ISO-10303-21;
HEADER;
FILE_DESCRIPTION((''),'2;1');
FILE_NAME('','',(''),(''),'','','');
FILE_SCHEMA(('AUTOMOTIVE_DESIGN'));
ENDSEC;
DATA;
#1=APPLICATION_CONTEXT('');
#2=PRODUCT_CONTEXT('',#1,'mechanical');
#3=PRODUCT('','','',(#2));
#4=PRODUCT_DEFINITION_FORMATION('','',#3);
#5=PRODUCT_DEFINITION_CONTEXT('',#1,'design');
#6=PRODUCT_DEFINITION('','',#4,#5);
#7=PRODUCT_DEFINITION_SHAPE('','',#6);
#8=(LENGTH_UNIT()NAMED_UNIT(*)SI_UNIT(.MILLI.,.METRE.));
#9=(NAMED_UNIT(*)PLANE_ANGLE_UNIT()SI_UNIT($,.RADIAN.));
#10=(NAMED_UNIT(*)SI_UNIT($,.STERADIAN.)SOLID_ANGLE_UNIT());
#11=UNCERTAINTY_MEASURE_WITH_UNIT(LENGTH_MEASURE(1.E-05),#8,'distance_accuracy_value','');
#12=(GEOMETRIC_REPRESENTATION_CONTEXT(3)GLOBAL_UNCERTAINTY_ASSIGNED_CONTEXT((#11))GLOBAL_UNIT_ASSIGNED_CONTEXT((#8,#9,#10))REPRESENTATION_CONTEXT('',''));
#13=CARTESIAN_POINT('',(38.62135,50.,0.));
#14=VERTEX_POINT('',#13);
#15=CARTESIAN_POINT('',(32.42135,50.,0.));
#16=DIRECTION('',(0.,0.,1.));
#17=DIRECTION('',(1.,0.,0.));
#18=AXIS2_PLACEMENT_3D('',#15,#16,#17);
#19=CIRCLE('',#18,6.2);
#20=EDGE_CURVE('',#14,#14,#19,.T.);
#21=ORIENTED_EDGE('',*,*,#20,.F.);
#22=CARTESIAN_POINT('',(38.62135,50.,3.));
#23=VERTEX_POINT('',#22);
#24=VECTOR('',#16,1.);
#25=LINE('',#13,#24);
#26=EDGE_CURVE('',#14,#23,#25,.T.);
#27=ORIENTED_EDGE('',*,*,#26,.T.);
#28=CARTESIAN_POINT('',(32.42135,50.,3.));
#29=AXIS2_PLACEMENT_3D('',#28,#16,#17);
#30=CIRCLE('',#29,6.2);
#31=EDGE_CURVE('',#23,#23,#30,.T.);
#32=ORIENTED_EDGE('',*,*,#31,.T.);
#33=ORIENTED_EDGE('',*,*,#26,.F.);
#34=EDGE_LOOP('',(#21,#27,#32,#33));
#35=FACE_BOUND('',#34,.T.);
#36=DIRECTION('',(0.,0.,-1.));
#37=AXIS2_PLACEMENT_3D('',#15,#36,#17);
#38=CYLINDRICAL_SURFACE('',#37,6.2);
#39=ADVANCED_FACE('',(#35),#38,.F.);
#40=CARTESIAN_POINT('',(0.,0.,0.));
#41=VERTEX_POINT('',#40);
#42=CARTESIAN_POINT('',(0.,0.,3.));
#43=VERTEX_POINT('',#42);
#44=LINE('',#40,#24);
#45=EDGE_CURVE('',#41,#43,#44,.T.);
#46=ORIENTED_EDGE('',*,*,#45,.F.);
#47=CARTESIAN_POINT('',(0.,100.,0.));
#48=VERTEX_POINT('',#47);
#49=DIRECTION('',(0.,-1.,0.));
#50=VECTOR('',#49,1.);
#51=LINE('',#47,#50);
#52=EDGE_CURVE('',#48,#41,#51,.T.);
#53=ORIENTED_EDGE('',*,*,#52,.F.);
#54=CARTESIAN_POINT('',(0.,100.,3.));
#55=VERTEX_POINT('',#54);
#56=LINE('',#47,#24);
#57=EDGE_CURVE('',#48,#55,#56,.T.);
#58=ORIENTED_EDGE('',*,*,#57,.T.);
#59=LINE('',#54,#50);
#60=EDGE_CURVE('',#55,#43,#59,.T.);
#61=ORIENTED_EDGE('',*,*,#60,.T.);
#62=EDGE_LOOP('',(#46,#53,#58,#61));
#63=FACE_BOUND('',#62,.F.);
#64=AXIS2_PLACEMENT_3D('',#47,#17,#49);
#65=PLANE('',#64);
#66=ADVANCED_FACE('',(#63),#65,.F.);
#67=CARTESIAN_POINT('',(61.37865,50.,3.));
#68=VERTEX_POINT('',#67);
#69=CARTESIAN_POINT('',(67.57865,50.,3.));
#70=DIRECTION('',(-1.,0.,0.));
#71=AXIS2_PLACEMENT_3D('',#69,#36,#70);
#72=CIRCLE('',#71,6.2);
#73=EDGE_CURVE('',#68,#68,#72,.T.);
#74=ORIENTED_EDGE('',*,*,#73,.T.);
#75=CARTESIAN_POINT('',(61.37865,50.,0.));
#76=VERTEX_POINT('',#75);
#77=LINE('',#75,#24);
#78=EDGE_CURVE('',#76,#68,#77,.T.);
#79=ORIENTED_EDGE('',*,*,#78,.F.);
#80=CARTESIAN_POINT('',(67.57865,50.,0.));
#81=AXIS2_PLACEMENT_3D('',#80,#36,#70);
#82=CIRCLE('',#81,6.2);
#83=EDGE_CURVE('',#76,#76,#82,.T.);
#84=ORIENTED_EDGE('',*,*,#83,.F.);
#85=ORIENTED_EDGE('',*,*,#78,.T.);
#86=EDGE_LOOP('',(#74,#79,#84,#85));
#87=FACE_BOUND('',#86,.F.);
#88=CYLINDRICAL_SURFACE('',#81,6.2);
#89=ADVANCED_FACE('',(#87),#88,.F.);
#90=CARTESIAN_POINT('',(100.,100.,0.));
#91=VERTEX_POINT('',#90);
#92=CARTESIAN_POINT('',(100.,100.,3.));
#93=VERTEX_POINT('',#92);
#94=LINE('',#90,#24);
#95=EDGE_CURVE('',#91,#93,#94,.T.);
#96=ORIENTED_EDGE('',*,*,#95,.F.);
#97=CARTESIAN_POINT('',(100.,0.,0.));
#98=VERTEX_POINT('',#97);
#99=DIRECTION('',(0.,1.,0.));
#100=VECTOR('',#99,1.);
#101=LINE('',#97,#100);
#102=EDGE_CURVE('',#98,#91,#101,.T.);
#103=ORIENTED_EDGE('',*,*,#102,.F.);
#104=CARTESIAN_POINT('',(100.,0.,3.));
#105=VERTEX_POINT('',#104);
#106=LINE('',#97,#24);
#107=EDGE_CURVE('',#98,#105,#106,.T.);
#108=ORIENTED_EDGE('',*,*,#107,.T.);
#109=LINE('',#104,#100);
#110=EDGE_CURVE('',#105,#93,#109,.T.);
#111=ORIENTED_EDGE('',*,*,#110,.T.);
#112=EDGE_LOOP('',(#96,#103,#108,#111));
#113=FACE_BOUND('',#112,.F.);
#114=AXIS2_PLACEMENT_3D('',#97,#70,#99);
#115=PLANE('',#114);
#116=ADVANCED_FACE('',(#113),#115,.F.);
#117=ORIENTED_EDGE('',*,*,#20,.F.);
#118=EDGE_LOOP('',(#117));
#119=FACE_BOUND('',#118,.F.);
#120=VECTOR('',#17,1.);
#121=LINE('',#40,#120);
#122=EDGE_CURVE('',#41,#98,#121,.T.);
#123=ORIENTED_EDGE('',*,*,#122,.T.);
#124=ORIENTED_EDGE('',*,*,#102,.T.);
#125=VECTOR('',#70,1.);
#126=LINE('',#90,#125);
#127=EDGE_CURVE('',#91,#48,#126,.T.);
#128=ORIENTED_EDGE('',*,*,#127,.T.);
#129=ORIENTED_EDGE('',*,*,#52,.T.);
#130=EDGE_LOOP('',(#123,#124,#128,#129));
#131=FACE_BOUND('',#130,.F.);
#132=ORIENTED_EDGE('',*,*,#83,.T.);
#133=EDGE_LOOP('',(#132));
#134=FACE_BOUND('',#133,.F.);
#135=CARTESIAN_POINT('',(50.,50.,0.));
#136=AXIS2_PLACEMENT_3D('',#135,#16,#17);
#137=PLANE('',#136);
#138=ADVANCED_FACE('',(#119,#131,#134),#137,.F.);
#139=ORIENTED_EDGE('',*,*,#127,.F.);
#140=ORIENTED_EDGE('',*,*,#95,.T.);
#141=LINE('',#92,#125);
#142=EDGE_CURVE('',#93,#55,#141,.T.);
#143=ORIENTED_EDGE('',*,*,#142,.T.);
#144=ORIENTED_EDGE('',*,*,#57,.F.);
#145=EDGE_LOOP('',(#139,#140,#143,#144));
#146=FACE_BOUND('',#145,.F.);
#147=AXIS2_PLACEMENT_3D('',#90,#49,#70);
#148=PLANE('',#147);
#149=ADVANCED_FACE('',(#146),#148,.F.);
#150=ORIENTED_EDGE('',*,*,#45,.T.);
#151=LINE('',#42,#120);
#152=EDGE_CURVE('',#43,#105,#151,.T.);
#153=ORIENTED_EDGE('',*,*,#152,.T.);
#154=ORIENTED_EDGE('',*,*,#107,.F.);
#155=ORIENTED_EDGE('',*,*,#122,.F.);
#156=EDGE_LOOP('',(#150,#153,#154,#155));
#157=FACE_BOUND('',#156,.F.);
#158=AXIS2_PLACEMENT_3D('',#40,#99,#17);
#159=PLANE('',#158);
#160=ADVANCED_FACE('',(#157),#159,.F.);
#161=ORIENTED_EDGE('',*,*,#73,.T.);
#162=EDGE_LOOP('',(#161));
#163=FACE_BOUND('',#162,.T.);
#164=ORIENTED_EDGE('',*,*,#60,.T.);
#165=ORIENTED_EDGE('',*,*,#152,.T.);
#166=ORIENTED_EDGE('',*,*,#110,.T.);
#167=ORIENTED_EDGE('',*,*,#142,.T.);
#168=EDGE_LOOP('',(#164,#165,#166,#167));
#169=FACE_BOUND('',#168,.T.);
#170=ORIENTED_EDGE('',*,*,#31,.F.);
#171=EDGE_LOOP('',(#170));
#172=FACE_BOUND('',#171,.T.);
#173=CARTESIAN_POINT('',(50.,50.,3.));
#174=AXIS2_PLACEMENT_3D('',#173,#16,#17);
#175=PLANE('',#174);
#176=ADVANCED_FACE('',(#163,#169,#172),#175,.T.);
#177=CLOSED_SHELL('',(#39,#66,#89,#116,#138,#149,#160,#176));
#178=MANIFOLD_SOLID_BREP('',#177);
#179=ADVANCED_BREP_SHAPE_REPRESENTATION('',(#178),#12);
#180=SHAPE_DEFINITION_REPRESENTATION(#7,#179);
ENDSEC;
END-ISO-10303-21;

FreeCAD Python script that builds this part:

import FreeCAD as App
import Part
import Sketcher
from FreeCAD import Vector
Q = App.Units.Quantity


def add_polygon(sketch, points):
    """Adds a closed chain of lines whose ends are joined by coincident constraints."""
    first, n = sketch.GeometryCount, len(points)
    for a, b in zip(points, points[1:] + points[:1]):
        sketch.addGeometry(Part.LineSegment(App.Vector(*a, 0), App.Vector(*b, 0)), False)
    for i in range(n):
        sketch.addConstraint(Sketcher.Constraint("Coincident", first + i, 2, first + (i + 1) % n, 1))

doc = App.newDocument("Part")
body = doc.addObject("PartDesign::Body", "Body")

sketch1 = doc.addObject("Sketcher::SketchObject", "Sketch")
body.addObject(sketch1)
sketch1.AttachmentSupport = (doc.XY_Plane, [""])
sketch1.MapMode = "FlatFace"
add_polygon(sketch1, [(0, 0), (100, 0), (100, 100), (0, 100)])
sketch1.addGeometry(Part.Circle(Vector(32, 50, 0), Vector(0, 0, 1), 6), False)
sketch1.addGeometry(Part.Circle(Vector(68, 50, 0), Vector(0, 0, 1), 6), False)
sketch1.addConstraint([
    Sketcher.Constraint("Horizontal", 0),
    Sketcher.Constraint("Vertical", 1),
    Sketcher.Constraint("Horizontal", 2),
    Sketcher.Constraint("Vertical", 3),
    Sketcher.Constraint("Coincident", 3, 2, -1, 1),
    Sketcher.Constraint("Equal", 4, 5),
    Sketcher.Constraint("Horizontal", 4, 3, 5, 3),
    Sketcher.Constraint("Equal", 2, 1),
    Sketcher.Constraint("Diameter", 4, Q("12.4 mm")),
    Sketcher.Constraint("DistanceX", 0, 1, 0, 2, Q("100 mm")),
    Sketcher.Constraint("DistanceY", -1, 1, 4, 3, Q("50 mm")),
    Sketcher.Constraint("DistanceX", 4, 3, 5, 3, Q("35.1573 mm")),
    Sketcher.Constraint("DistanceX", -1, 1, 4, 3, Q("32.42135 mm")),
])
pad1 = doc.addObject("PartDesign::Pad", "Pad")
body.addObject(pad1)
pad1.Profile = sketch1
pad1.Length = 3

doc.recompute()
